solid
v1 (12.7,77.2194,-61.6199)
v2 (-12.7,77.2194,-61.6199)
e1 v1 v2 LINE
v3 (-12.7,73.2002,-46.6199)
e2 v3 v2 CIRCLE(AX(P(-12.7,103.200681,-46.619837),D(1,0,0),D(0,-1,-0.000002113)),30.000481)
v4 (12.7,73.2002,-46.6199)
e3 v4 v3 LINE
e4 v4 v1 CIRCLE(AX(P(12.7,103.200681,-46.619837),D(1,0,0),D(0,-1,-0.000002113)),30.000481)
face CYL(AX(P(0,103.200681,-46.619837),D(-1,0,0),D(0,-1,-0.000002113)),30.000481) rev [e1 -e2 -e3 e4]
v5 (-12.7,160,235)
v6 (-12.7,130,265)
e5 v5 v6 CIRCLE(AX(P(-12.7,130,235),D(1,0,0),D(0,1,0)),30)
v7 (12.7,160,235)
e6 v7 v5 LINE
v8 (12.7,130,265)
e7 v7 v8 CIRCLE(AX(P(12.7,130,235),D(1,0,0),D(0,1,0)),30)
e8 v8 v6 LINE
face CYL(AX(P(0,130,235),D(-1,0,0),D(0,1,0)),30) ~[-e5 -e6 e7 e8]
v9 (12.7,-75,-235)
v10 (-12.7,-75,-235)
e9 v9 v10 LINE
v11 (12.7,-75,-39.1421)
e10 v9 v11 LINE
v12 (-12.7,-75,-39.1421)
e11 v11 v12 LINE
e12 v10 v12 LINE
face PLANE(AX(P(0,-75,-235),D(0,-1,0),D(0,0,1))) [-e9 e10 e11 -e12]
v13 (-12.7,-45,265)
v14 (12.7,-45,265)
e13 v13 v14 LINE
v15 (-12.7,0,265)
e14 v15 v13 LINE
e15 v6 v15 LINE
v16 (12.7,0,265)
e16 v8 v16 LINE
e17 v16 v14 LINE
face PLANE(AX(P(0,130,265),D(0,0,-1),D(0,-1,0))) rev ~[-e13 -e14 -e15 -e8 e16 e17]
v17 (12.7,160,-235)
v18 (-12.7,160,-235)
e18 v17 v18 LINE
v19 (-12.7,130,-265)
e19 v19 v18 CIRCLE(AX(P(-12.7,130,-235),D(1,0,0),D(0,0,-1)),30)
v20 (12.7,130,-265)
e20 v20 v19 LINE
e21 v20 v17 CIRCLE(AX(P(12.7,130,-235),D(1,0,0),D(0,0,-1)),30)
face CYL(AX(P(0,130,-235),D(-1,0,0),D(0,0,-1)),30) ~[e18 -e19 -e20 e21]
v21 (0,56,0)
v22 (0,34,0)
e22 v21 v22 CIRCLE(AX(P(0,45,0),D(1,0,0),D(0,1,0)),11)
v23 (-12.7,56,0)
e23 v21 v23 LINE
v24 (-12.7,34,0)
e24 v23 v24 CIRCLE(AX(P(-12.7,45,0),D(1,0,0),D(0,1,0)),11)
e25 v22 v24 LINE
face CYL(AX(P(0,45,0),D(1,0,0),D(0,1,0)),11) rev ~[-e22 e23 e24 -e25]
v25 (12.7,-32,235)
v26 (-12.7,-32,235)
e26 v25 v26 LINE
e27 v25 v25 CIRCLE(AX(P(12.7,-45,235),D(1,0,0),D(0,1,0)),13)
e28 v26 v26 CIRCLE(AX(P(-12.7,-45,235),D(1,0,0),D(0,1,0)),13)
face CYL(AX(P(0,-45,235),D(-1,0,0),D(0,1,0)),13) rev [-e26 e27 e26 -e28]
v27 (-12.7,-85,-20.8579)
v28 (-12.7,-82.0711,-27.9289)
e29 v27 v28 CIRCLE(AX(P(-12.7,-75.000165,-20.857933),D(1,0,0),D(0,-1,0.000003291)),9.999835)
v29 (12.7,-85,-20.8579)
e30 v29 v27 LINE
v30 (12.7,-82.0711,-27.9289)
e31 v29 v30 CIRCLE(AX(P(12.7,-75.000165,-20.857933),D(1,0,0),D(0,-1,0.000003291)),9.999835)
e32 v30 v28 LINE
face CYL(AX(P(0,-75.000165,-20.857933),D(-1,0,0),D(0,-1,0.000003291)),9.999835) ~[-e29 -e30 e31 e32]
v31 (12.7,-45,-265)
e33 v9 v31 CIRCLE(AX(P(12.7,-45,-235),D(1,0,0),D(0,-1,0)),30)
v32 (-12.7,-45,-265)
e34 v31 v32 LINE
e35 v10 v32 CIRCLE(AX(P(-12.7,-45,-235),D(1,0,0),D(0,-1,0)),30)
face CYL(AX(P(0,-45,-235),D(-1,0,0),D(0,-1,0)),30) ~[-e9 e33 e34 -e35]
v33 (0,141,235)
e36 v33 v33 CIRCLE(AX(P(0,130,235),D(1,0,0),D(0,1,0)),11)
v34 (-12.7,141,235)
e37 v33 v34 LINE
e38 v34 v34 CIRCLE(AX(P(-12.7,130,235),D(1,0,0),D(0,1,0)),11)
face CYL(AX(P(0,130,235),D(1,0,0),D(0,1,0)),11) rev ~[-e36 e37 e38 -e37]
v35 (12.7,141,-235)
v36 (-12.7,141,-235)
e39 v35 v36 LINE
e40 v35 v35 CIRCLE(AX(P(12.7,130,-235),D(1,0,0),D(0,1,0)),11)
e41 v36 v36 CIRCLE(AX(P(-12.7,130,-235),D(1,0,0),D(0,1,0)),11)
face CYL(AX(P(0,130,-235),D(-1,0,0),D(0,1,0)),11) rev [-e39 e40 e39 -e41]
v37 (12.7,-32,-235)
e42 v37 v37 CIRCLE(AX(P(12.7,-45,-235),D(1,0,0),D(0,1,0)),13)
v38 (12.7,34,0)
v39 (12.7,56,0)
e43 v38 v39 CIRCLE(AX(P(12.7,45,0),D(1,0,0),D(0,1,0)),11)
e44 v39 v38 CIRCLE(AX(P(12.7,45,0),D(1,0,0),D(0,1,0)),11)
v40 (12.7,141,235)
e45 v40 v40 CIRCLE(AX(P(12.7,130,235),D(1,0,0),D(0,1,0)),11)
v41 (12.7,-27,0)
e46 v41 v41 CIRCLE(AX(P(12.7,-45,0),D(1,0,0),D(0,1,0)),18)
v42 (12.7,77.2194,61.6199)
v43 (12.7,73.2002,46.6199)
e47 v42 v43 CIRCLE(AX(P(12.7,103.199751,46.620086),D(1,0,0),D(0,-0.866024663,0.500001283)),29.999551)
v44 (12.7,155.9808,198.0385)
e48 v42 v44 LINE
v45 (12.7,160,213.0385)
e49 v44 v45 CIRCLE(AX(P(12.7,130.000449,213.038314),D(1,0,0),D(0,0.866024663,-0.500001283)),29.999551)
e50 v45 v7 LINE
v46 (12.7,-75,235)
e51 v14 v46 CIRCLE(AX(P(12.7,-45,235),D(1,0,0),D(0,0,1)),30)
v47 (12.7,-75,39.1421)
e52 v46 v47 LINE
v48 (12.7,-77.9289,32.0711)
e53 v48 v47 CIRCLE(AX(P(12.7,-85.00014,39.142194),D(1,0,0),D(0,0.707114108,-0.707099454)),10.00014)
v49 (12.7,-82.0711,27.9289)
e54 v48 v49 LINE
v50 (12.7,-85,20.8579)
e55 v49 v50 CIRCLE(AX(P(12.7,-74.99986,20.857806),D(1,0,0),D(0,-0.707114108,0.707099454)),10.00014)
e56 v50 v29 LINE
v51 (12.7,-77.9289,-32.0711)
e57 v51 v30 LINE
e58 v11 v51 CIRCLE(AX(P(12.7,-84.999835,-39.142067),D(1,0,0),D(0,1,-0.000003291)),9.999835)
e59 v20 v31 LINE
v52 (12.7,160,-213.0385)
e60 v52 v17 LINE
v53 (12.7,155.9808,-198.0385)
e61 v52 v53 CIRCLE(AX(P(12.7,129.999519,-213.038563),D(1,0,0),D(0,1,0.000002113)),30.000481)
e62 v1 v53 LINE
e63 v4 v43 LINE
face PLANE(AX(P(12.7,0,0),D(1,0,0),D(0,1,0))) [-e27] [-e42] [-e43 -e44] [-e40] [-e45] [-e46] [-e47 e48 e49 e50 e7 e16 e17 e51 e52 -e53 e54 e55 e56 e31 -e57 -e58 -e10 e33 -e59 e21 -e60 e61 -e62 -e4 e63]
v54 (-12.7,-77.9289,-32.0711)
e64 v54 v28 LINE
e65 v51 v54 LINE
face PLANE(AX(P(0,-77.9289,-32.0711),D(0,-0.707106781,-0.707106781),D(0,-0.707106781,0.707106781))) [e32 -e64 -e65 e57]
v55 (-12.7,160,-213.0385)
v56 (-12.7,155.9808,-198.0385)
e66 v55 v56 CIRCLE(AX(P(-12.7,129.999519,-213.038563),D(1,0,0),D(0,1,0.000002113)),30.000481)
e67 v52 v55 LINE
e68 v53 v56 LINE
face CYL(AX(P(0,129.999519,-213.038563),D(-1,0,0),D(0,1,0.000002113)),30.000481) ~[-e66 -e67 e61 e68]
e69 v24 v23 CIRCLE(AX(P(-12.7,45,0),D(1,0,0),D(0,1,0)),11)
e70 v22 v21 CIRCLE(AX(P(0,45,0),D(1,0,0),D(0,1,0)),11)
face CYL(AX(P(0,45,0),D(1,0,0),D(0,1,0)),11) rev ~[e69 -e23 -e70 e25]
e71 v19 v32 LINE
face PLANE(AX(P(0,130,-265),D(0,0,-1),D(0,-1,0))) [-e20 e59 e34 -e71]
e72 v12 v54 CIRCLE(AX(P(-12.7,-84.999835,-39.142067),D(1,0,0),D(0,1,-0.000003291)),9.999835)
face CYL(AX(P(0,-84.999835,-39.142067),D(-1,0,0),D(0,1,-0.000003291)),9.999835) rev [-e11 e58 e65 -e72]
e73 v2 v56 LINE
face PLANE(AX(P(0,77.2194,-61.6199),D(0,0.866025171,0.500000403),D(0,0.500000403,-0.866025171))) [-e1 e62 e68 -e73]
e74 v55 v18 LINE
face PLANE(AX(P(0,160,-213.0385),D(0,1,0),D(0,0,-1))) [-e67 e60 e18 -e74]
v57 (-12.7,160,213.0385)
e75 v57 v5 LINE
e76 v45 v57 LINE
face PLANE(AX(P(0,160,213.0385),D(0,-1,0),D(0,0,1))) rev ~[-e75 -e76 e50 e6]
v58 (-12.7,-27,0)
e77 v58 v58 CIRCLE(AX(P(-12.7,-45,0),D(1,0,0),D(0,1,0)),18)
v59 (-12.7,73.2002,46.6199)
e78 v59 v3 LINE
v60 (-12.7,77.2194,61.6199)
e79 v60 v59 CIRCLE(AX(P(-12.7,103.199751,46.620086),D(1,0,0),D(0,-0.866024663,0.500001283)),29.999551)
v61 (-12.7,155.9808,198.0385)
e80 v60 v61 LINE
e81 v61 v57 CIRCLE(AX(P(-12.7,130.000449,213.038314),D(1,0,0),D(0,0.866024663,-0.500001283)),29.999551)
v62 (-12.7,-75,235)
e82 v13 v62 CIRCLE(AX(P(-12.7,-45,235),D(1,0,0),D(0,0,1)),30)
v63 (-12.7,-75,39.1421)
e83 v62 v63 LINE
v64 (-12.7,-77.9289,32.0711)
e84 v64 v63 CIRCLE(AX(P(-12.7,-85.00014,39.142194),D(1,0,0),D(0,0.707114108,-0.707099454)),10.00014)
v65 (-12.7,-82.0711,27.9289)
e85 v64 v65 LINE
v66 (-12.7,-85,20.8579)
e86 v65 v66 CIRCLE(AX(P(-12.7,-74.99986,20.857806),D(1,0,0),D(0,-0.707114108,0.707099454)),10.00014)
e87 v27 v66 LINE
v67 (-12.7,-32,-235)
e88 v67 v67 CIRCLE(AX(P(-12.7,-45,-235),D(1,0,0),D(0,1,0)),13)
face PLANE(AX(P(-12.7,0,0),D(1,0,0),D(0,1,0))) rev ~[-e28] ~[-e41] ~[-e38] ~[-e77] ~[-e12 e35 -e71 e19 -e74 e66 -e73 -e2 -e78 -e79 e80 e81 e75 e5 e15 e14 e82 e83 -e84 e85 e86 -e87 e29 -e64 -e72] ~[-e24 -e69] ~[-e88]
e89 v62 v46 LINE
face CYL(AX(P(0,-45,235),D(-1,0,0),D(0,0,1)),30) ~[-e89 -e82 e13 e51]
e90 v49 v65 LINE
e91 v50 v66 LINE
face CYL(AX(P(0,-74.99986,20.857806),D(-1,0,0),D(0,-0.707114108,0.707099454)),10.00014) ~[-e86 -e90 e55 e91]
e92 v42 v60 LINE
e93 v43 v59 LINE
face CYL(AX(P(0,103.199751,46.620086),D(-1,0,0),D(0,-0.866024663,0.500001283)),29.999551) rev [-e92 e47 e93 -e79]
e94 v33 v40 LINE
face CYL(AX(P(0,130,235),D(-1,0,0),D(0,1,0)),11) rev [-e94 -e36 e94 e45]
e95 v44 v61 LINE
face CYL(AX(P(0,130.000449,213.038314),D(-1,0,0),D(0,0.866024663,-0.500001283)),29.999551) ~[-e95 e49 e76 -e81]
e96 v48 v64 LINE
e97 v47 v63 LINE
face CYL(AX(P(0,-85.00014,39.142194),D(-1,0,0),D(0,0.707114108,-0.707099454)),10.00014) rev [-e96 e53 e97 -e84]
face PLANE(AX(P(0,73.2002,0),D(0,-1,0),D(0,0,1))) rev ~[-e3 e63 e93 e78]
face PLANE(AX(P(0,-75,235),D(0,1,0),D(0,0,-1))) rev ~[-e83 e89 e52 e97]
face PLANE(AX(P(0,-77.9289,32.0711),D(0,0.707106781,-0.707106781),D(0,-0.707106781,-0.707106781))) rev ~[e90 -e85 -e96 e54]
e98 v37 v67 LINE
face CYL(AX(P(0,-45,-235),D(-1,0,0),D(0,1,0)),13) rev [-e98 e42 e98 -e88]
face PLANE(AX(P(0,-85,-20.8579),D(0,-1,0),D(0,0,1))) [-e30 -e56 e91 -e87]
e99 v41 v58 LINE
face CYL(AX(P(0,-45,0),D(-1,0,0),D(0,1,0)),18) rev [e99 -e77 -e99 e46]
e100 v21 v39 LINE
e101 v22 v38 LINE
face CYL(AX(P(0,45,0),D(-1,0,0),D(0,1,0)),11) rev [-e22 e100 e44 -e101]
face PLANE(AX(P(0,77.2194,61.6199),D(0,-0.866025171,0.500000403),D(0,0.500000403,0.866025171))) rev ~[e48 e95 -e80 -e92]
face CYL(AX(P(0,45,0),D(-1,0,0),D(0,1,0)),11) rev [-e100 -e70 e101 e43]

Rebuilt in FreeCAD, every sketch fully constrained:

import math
import FreeCAD as App
import Part
import Sketcher
from FreeCAD import Vector
Q = App.Units.Quantity

doc = App.newDocument("Part")
params = doc.addObject("Spreadsheet::Sheet", "Params")
for row, (alias, value) in enumerate([
    ("sketch1_diameter", "26 mm"),
    ("sketch1_diameter2", "22 mm"),
    ("sketch1_diameter3", "36 mm"),
    ("sketch1_radius", "30 mm"),
    ("sketch1_radius2", "10 mm"),
    ("pad1_length", "25.4 mm"),
], start=1):
    params.set(f"A{row}", alias)
    params.set(f"B{row}", "=" + value)
    params.setAlias(f"B{row}", alias)

body = doc.addObject("PartDesign::Body", "Body")

sketch1 = body.newObject("Sketcher::SketchObject", "Sketch")
sketch1.AttachmentSupport = (doc.getObject("YZ_Plane"), [""])
sketch1.MapMode = "FlatFace"
sketch1.addGeometry([
    Part.LineSegment(Vector(130, 265, 0), Vector(0, 265, 0)),
    Part.LineSegment(Vector(0, 265, 0), Vector(-45, 265, 0)),
    Part.ArcOfCircle(Part.Circle(Vector(-45, 235, 0), Vector(0, 0, 1), 30), math.radians(90), math.radians(180)),
    Part.LineSegment(Vector(-75, 235, 0), Vector(-75, 39, 0)),
    Part.ArcOfCircle(Part.Circle(Vector(-85, 39, 0), Vector(0, 0, 1), 10), math.radians(-45), math.radians(0)),
    Part.LineSegment(Vector(-78, 32, 0), Vector(-82, 28, 0)),
    Part.ArcOfCircle(Part.Circle(Vector(-75, 21, 0), Vector(0, 0, 1), 10), math.radians(135), math.radians(180)),
    Part.LineSegment(Vector(-85, 21, 0), Vector(-85, -21, 0)),
    Part.ArcOfCircle(Part.Circle(Vector(-75, -21, 0), Vector(0, 0, 1), 10), math.radians(180), math.radians(225)),
    Part.LineSegment(Vector(-82, -28, 0), Vector(-78, -32, 0)),
    Part.ArcOfCircle(Part.Circle(Vector(-85, -39, 0), Vector(0, 0, 1), 10), math.radians(0), math.radians(45)),
    Part.LineSegment(Vector(-75, -39, 0), Vector(-75, -235, 0)),
    Part.ArcOfCircle(Part.Circle(Vector(-45, -235, 0), Vector(0, 0, 1), 30), math.radians(180), math.radians(270)),
    Part.LineSegment(Vector(-45, -265, 0), Vector(130, -265, 0)),
    Part.ArcOfCircle(Part.Circle(Vector(130, -235, 0), Vector(0, 0, 1), 30), math.radians(-90), math.radians(0)),
    Part.LineSegment(Vector(160, -235, 0), Vector(160, -213, 0)),
    Part.ArcOfCircle(Part.Circle(Vector(130, -213, 0), Vector(0, 0, 1), 30), math.radians(0), math.radians(30)),
    Part.LineSegment(Vector(156, -198, 0), Vector(77, -62, 0)),
    Part.ArcOfCircle(Part.Circle(Vector(103, -47, 0), Vector(0, 0, 1), 30), math.radians(180), math.radians(210)),
    Part.LineSegment(Vector(73, -47, 0), Vector(73, 47, 0)),
    Part.ArcOfCircle(Part.Circle(Vector(103, 47, 0), Vector(0, 0, 1), 30), math.radians(150), math.radians(180)),
    Part.LineSegment(Vector(77, 62, 0), Vector(156, 198, 0)),
    Part.ArcOfCircle(Part.Circle(Vector(130, 213, 0), Vector(0, 0, 1), 30), math.radians(-30), math.radians(0)),
    Part.LineSegment(Vector(160, 213, 0), Vector(160, 235, 0)),
    Part.ArcOfCircle(Part.Circle(Vector(130, 235, 0), Vector(0, 0, 1), 30), math.radians(0), math.radians(90)),
    Part.Circle(Vector(-45, -235, 0), Vector(0, 0, 1), 13),
    Part.Circle(Vector(130, -235, 0), Vector(0, 0, 1), 11),
    Part.Circle(Vector(-45, 0, 0), Vector(0, 0, 1), 18),
    Part.Circle(Vector(-45, 235, 0), Vector(0, 0, 1), 13),
    Part.Circle(Vector(45, 0, 0), Vector(0, 0, 1), 11),
    Part.Circle(Vector(130, 235, 0), Vector(0, 0, 1), 11),
], False)
sketch1.addConstraint([
    Sketcher.Constraint("Coincident", 0, 2, 1, 1),
    Sketcher.Constraint("Tangent", 1, 2, 2, 1),
    Sketcher.Constraint("Tangent", 2, 2, 3, 1),
    Sketcher.Constraint("Tangent", 3, 2, 4, 2),
    Sketcher.Constraint("Tangent", 4, 1, 5, 1),
    Sketcher.Constraint("Tangent", 5, 2, 6, 1),
    Sketcher.Constraint("Tangent", 6, 2, 7, 1),
    Sketcher.Constraint("Tangent", 7, 2, 8, 1),
    Sketcher.Constraint("Tangent", 8, 2, 9, 1),
    Sketcher.Constraint("Tangent", 9, 2, 10, 2),
    Sketcher.Constraint("Tangent", 10, 1, 11, 1),
    Sketcher.Constraint("Tangent", 11, 2, 12, 1),
    Sketcher.Constraint("Tangent", 12, 2, 13, 1),
    Sketcher.Constraint("Tangent", 13, 2, 14, 1),
    Sketcher.Constraint("Tangent", 14, 2, 15, 1),
    Sketcher.Constraint("Tangent", 15, 2, 16, 1),
    Sketcher.Constraint("Tangent", 16, 2, 17, 1),
    Sketcher.Constraint("Tangent", 17, 2, 18, 2),
    Sketcher.Constraint("Tangent", 18, 1, 19, 1),
    Sketcher.Constraint("Tangent", 19, 2, 20, 2),
    Sketcher.Constraint("Tangent", 20, 1, 21, 1),
    Sketcher.Constraint("Tangent", 21, 2, 22, 1),
    Sketcher.Constraint("Tangent", 22, 2, 23, 1),
    Sketcher.Constraint("Tangent", 23, 2, 24, 1),
    Sketcher.Constraint("Tangent", 24, 2, 0, 1),
    Sketcher.Constraint("Horizontal", 0),
    Sketcher.Constraint("Horizontal", 1),
    Sketcher.Constraint("Vertical", 3),
    Sketcher.Constraint("Vertical", 7),
    Sketcher.Constraint("Vertical", 11),
    Sketcher.Constraint("Horizontal", 13),
    Sketcher.Constraint("Vertical", 15),
    Sketcher.Constraint("Vertical", 19),
    Sketcher.Constraint("Vertical", 23),
    Sketcher.Constraint("Coincident", 25, 3, 12, 3),
    Sketcher.Constraint("Coincident", 26, 3, 14, 3),
    Sketcher.Constraint("Coincident", 28, 3, 2, 3),
    Sketcher.Constraint("Coincident", 30, 3, 24, 3),
    Sketcher.Constraint("Equal", 4, 6),
    Sketcher.Constraint("Equal", 6, 8),
    Sketcher.Constraint("Equal", 8, 10),
    Sketcher.Constraint("Equal", 2, 12),
    Sketcher.Constraint("Equal", 12, 14),
    Sketcher.Constraint("Equal", 14, 16),
    Sketcher.Constraint("Equal", 16, 18),
    Sketcher.Constraint("Equal", 18, 20),
    Sketcher.Constraint("Equal", 20, 22),
    Sketcher.Constraint("Equal", 22, 24),
    Sketcher.Constraint("Equal", 25, 28),
    Sketcher.Constraint("Equal", 26, 29),
    Sketcher.Constraint("Equal", 29, 30),
    Sketcher.Constraint("Symmetric", 27, 3, 29, 3, -1, 1),
    Sketcher.Constraint("Symmetric", 4, 3, 10, 3, -1),
    Sketcher.Constraint("Symmetric", 16, 3, 22, 3, -1),
    Sketcher.Constraint("PointOnObject", 27, 3, -1),
    Sketcher.Constraint("PointOnObject", 0, 2, -2),
    Sketcher.Constraint("Perpendicular", 5, 9),
    Sketcher.Constraint("Vertical", 25, 3, 27, 3),
    Sketcher.Constraint("Vertical", 8, 3, 2, 2),
    Sketcher.Constraint("Vertical", 5, 2, 8, 2),
    Sketcher.Constraint("Vertical", 17, 2, 20, 1),
    Sketcher.Constraint("Equal", 3, 11),
    Sketcher.Constraint("Diameter", 25, 26.0),
    Sketcher.Constraint("Diameter", 26, 22.0),
    Sketcher.Constraint("Diameter", 27, 36.0),
    Sketcher.Constraint("Radius", 2, 30.0),
    Sketcher.Constraint("Radius", 4, 10.0),
    Sketcher.Constraint("DistanceX", 1, 2, 1, 1, 45.0),
    Sketcher.Constraint("DistanceY", 12, 3, 2, 3, 470.0),
    Sketcher.Constraint("DistanceX", 0, 2, 0, 1, 130.0),
    Sketcher.Constraint("Angle", 17, Q("120 deg")),
    Sketcher.Constraint("DistanceY", 8, 3, 4, 3, 60.0),
    Sketcher.Constraint("DistanceY", 18, 3, -1, 1, 46.62),
    Sketcher.Constraint("DistanceY", 15, 1, 15, 2, 21.9615),
])
sketch1.setExpression("Constraints[62]", "Params.sketch1_diameter")
sketch1.setExpression("Constraints[63]", "Params.sketch1_diameter2")
sketch1.setExpression("Constraints[64]", "Params.sketch1_diameter3")
sketch1.setExpression("Constraints[65]", "Params.sketch1_radius")
sketch1.setExpression("Constraints[66]", "Params.sketch1_radius2")
pad1 = body.newObject("PartDesign::Pad", "Pad")
pad1.Profile = sketch1
pad1.setExpression("Length", "Params.pad1_length")
pad1.Midplane = True

doc.recompute()
